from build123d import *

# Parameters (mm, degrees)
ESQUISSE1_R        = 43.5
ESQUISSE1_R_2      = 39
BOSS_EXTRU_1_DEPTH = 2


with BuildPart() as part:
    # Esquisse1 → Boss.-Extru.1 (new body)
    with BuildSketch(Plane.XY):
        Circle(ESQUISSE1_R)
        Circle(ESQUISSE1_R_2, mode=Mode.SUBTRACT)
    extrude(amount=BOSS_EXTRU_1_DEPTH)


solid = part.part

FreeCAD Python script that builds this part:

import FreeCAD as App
import Part
import Sketcher

V = App.Vector
Q = App.Units.Quantity

doc = App.newDocument("Part")
body = doc.addObject("PartDesign::Body", "Body")

sketch1 = doc.addObject("Sketcher::SketchObject", "Sketch")
body.addObject(sketch1)
sketch1.AttachmentSupport = (doc.XY_Plane, [""])
sketch1.MapMode = "FlatFace"
sketch1.addGeometry(Part.Circle(V(0, 0, 0), V(0, 0, 1), 43.5), False)
sketch1.addGeometry(Part.Circle(V(0, 0, 0), V(0, 0, 1), 39), False)
sketch1.addConstraint(Sketcher.Constraint("Coincident", 0, 3, -1, 1))
sketch1.addConstraint(Sketcher.Constraint("Coincident", 1, 3, -1, 1))
sketch1.addConstraint(Sketcher.Constraint("Diameter", 0, Q("87 mm")))
sketch1.addConstraint(Sketcher.Constraint("Diameter", 1, Q("78 mm")))
pad1 = doc.addObject("PartDesign::Pad", "Pad")
body.addObject(pad1)
pad1.Profile = sketch1
pad1.Length = 2

doc.recompute()
